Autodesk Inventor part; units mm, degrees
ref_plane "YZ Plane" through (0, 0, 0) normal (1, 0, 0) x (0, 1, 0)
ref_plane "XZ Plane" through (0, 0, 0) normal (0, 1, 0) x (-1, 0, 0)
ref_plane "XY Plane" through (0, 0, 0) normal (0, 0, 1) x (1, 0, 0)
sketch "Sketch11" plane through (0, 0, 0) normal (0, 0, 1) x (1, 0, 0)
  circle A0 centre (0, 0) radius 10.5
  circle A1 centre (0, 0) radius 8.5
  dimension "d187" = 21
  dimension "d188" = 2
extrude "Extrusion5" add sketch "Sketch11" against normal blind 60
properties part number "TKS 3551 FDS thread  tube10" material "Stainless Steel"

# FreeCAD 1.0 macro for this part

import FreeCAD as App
import Part
import Sketcher
from FreeCAD import Vector

doc = App.newDocument("Part")
body = doc.addObject("PartDesign::Body", "Body")

sketch1 = doc.addObject("Sketcher::SketchObject", "Sketch")
body.addObject(sketch1)
sketch1.AttachmentSupport = (doc.XY_Plane, [""])
sketch1.MapMode = "FlatFace"
sketch1.addGeometry(Part.Circle(Vector(0, 0, 0), Vector(0, 0, 1), 10), False)
sketch1.addGeometry(Part.Circle(Vector(0, 0, 0), Vector(0, 0, 1), 8), False)
sketch1.addConstraint(Sketcher.Constraint("Coincident", 0, 3, -1, 1))
sketch1.addConstraint(Sketcher.Constraint("Coincident", 1, 3, -1, 1))
sketch1.addConstraint(Sketcher.Constraint("Diameter", 0, 21.0))
sketch1.addConstraint(Sketcher.Constraint("Diameter", 1, 17.0))
pad1 = doc.addObject("PartDesign::Pad", "Pad")
body.addObject(pad1)
pad1.Profile = sketch1
pad1.Length = 60
pad1.Reversed = True

doc.recompute()
